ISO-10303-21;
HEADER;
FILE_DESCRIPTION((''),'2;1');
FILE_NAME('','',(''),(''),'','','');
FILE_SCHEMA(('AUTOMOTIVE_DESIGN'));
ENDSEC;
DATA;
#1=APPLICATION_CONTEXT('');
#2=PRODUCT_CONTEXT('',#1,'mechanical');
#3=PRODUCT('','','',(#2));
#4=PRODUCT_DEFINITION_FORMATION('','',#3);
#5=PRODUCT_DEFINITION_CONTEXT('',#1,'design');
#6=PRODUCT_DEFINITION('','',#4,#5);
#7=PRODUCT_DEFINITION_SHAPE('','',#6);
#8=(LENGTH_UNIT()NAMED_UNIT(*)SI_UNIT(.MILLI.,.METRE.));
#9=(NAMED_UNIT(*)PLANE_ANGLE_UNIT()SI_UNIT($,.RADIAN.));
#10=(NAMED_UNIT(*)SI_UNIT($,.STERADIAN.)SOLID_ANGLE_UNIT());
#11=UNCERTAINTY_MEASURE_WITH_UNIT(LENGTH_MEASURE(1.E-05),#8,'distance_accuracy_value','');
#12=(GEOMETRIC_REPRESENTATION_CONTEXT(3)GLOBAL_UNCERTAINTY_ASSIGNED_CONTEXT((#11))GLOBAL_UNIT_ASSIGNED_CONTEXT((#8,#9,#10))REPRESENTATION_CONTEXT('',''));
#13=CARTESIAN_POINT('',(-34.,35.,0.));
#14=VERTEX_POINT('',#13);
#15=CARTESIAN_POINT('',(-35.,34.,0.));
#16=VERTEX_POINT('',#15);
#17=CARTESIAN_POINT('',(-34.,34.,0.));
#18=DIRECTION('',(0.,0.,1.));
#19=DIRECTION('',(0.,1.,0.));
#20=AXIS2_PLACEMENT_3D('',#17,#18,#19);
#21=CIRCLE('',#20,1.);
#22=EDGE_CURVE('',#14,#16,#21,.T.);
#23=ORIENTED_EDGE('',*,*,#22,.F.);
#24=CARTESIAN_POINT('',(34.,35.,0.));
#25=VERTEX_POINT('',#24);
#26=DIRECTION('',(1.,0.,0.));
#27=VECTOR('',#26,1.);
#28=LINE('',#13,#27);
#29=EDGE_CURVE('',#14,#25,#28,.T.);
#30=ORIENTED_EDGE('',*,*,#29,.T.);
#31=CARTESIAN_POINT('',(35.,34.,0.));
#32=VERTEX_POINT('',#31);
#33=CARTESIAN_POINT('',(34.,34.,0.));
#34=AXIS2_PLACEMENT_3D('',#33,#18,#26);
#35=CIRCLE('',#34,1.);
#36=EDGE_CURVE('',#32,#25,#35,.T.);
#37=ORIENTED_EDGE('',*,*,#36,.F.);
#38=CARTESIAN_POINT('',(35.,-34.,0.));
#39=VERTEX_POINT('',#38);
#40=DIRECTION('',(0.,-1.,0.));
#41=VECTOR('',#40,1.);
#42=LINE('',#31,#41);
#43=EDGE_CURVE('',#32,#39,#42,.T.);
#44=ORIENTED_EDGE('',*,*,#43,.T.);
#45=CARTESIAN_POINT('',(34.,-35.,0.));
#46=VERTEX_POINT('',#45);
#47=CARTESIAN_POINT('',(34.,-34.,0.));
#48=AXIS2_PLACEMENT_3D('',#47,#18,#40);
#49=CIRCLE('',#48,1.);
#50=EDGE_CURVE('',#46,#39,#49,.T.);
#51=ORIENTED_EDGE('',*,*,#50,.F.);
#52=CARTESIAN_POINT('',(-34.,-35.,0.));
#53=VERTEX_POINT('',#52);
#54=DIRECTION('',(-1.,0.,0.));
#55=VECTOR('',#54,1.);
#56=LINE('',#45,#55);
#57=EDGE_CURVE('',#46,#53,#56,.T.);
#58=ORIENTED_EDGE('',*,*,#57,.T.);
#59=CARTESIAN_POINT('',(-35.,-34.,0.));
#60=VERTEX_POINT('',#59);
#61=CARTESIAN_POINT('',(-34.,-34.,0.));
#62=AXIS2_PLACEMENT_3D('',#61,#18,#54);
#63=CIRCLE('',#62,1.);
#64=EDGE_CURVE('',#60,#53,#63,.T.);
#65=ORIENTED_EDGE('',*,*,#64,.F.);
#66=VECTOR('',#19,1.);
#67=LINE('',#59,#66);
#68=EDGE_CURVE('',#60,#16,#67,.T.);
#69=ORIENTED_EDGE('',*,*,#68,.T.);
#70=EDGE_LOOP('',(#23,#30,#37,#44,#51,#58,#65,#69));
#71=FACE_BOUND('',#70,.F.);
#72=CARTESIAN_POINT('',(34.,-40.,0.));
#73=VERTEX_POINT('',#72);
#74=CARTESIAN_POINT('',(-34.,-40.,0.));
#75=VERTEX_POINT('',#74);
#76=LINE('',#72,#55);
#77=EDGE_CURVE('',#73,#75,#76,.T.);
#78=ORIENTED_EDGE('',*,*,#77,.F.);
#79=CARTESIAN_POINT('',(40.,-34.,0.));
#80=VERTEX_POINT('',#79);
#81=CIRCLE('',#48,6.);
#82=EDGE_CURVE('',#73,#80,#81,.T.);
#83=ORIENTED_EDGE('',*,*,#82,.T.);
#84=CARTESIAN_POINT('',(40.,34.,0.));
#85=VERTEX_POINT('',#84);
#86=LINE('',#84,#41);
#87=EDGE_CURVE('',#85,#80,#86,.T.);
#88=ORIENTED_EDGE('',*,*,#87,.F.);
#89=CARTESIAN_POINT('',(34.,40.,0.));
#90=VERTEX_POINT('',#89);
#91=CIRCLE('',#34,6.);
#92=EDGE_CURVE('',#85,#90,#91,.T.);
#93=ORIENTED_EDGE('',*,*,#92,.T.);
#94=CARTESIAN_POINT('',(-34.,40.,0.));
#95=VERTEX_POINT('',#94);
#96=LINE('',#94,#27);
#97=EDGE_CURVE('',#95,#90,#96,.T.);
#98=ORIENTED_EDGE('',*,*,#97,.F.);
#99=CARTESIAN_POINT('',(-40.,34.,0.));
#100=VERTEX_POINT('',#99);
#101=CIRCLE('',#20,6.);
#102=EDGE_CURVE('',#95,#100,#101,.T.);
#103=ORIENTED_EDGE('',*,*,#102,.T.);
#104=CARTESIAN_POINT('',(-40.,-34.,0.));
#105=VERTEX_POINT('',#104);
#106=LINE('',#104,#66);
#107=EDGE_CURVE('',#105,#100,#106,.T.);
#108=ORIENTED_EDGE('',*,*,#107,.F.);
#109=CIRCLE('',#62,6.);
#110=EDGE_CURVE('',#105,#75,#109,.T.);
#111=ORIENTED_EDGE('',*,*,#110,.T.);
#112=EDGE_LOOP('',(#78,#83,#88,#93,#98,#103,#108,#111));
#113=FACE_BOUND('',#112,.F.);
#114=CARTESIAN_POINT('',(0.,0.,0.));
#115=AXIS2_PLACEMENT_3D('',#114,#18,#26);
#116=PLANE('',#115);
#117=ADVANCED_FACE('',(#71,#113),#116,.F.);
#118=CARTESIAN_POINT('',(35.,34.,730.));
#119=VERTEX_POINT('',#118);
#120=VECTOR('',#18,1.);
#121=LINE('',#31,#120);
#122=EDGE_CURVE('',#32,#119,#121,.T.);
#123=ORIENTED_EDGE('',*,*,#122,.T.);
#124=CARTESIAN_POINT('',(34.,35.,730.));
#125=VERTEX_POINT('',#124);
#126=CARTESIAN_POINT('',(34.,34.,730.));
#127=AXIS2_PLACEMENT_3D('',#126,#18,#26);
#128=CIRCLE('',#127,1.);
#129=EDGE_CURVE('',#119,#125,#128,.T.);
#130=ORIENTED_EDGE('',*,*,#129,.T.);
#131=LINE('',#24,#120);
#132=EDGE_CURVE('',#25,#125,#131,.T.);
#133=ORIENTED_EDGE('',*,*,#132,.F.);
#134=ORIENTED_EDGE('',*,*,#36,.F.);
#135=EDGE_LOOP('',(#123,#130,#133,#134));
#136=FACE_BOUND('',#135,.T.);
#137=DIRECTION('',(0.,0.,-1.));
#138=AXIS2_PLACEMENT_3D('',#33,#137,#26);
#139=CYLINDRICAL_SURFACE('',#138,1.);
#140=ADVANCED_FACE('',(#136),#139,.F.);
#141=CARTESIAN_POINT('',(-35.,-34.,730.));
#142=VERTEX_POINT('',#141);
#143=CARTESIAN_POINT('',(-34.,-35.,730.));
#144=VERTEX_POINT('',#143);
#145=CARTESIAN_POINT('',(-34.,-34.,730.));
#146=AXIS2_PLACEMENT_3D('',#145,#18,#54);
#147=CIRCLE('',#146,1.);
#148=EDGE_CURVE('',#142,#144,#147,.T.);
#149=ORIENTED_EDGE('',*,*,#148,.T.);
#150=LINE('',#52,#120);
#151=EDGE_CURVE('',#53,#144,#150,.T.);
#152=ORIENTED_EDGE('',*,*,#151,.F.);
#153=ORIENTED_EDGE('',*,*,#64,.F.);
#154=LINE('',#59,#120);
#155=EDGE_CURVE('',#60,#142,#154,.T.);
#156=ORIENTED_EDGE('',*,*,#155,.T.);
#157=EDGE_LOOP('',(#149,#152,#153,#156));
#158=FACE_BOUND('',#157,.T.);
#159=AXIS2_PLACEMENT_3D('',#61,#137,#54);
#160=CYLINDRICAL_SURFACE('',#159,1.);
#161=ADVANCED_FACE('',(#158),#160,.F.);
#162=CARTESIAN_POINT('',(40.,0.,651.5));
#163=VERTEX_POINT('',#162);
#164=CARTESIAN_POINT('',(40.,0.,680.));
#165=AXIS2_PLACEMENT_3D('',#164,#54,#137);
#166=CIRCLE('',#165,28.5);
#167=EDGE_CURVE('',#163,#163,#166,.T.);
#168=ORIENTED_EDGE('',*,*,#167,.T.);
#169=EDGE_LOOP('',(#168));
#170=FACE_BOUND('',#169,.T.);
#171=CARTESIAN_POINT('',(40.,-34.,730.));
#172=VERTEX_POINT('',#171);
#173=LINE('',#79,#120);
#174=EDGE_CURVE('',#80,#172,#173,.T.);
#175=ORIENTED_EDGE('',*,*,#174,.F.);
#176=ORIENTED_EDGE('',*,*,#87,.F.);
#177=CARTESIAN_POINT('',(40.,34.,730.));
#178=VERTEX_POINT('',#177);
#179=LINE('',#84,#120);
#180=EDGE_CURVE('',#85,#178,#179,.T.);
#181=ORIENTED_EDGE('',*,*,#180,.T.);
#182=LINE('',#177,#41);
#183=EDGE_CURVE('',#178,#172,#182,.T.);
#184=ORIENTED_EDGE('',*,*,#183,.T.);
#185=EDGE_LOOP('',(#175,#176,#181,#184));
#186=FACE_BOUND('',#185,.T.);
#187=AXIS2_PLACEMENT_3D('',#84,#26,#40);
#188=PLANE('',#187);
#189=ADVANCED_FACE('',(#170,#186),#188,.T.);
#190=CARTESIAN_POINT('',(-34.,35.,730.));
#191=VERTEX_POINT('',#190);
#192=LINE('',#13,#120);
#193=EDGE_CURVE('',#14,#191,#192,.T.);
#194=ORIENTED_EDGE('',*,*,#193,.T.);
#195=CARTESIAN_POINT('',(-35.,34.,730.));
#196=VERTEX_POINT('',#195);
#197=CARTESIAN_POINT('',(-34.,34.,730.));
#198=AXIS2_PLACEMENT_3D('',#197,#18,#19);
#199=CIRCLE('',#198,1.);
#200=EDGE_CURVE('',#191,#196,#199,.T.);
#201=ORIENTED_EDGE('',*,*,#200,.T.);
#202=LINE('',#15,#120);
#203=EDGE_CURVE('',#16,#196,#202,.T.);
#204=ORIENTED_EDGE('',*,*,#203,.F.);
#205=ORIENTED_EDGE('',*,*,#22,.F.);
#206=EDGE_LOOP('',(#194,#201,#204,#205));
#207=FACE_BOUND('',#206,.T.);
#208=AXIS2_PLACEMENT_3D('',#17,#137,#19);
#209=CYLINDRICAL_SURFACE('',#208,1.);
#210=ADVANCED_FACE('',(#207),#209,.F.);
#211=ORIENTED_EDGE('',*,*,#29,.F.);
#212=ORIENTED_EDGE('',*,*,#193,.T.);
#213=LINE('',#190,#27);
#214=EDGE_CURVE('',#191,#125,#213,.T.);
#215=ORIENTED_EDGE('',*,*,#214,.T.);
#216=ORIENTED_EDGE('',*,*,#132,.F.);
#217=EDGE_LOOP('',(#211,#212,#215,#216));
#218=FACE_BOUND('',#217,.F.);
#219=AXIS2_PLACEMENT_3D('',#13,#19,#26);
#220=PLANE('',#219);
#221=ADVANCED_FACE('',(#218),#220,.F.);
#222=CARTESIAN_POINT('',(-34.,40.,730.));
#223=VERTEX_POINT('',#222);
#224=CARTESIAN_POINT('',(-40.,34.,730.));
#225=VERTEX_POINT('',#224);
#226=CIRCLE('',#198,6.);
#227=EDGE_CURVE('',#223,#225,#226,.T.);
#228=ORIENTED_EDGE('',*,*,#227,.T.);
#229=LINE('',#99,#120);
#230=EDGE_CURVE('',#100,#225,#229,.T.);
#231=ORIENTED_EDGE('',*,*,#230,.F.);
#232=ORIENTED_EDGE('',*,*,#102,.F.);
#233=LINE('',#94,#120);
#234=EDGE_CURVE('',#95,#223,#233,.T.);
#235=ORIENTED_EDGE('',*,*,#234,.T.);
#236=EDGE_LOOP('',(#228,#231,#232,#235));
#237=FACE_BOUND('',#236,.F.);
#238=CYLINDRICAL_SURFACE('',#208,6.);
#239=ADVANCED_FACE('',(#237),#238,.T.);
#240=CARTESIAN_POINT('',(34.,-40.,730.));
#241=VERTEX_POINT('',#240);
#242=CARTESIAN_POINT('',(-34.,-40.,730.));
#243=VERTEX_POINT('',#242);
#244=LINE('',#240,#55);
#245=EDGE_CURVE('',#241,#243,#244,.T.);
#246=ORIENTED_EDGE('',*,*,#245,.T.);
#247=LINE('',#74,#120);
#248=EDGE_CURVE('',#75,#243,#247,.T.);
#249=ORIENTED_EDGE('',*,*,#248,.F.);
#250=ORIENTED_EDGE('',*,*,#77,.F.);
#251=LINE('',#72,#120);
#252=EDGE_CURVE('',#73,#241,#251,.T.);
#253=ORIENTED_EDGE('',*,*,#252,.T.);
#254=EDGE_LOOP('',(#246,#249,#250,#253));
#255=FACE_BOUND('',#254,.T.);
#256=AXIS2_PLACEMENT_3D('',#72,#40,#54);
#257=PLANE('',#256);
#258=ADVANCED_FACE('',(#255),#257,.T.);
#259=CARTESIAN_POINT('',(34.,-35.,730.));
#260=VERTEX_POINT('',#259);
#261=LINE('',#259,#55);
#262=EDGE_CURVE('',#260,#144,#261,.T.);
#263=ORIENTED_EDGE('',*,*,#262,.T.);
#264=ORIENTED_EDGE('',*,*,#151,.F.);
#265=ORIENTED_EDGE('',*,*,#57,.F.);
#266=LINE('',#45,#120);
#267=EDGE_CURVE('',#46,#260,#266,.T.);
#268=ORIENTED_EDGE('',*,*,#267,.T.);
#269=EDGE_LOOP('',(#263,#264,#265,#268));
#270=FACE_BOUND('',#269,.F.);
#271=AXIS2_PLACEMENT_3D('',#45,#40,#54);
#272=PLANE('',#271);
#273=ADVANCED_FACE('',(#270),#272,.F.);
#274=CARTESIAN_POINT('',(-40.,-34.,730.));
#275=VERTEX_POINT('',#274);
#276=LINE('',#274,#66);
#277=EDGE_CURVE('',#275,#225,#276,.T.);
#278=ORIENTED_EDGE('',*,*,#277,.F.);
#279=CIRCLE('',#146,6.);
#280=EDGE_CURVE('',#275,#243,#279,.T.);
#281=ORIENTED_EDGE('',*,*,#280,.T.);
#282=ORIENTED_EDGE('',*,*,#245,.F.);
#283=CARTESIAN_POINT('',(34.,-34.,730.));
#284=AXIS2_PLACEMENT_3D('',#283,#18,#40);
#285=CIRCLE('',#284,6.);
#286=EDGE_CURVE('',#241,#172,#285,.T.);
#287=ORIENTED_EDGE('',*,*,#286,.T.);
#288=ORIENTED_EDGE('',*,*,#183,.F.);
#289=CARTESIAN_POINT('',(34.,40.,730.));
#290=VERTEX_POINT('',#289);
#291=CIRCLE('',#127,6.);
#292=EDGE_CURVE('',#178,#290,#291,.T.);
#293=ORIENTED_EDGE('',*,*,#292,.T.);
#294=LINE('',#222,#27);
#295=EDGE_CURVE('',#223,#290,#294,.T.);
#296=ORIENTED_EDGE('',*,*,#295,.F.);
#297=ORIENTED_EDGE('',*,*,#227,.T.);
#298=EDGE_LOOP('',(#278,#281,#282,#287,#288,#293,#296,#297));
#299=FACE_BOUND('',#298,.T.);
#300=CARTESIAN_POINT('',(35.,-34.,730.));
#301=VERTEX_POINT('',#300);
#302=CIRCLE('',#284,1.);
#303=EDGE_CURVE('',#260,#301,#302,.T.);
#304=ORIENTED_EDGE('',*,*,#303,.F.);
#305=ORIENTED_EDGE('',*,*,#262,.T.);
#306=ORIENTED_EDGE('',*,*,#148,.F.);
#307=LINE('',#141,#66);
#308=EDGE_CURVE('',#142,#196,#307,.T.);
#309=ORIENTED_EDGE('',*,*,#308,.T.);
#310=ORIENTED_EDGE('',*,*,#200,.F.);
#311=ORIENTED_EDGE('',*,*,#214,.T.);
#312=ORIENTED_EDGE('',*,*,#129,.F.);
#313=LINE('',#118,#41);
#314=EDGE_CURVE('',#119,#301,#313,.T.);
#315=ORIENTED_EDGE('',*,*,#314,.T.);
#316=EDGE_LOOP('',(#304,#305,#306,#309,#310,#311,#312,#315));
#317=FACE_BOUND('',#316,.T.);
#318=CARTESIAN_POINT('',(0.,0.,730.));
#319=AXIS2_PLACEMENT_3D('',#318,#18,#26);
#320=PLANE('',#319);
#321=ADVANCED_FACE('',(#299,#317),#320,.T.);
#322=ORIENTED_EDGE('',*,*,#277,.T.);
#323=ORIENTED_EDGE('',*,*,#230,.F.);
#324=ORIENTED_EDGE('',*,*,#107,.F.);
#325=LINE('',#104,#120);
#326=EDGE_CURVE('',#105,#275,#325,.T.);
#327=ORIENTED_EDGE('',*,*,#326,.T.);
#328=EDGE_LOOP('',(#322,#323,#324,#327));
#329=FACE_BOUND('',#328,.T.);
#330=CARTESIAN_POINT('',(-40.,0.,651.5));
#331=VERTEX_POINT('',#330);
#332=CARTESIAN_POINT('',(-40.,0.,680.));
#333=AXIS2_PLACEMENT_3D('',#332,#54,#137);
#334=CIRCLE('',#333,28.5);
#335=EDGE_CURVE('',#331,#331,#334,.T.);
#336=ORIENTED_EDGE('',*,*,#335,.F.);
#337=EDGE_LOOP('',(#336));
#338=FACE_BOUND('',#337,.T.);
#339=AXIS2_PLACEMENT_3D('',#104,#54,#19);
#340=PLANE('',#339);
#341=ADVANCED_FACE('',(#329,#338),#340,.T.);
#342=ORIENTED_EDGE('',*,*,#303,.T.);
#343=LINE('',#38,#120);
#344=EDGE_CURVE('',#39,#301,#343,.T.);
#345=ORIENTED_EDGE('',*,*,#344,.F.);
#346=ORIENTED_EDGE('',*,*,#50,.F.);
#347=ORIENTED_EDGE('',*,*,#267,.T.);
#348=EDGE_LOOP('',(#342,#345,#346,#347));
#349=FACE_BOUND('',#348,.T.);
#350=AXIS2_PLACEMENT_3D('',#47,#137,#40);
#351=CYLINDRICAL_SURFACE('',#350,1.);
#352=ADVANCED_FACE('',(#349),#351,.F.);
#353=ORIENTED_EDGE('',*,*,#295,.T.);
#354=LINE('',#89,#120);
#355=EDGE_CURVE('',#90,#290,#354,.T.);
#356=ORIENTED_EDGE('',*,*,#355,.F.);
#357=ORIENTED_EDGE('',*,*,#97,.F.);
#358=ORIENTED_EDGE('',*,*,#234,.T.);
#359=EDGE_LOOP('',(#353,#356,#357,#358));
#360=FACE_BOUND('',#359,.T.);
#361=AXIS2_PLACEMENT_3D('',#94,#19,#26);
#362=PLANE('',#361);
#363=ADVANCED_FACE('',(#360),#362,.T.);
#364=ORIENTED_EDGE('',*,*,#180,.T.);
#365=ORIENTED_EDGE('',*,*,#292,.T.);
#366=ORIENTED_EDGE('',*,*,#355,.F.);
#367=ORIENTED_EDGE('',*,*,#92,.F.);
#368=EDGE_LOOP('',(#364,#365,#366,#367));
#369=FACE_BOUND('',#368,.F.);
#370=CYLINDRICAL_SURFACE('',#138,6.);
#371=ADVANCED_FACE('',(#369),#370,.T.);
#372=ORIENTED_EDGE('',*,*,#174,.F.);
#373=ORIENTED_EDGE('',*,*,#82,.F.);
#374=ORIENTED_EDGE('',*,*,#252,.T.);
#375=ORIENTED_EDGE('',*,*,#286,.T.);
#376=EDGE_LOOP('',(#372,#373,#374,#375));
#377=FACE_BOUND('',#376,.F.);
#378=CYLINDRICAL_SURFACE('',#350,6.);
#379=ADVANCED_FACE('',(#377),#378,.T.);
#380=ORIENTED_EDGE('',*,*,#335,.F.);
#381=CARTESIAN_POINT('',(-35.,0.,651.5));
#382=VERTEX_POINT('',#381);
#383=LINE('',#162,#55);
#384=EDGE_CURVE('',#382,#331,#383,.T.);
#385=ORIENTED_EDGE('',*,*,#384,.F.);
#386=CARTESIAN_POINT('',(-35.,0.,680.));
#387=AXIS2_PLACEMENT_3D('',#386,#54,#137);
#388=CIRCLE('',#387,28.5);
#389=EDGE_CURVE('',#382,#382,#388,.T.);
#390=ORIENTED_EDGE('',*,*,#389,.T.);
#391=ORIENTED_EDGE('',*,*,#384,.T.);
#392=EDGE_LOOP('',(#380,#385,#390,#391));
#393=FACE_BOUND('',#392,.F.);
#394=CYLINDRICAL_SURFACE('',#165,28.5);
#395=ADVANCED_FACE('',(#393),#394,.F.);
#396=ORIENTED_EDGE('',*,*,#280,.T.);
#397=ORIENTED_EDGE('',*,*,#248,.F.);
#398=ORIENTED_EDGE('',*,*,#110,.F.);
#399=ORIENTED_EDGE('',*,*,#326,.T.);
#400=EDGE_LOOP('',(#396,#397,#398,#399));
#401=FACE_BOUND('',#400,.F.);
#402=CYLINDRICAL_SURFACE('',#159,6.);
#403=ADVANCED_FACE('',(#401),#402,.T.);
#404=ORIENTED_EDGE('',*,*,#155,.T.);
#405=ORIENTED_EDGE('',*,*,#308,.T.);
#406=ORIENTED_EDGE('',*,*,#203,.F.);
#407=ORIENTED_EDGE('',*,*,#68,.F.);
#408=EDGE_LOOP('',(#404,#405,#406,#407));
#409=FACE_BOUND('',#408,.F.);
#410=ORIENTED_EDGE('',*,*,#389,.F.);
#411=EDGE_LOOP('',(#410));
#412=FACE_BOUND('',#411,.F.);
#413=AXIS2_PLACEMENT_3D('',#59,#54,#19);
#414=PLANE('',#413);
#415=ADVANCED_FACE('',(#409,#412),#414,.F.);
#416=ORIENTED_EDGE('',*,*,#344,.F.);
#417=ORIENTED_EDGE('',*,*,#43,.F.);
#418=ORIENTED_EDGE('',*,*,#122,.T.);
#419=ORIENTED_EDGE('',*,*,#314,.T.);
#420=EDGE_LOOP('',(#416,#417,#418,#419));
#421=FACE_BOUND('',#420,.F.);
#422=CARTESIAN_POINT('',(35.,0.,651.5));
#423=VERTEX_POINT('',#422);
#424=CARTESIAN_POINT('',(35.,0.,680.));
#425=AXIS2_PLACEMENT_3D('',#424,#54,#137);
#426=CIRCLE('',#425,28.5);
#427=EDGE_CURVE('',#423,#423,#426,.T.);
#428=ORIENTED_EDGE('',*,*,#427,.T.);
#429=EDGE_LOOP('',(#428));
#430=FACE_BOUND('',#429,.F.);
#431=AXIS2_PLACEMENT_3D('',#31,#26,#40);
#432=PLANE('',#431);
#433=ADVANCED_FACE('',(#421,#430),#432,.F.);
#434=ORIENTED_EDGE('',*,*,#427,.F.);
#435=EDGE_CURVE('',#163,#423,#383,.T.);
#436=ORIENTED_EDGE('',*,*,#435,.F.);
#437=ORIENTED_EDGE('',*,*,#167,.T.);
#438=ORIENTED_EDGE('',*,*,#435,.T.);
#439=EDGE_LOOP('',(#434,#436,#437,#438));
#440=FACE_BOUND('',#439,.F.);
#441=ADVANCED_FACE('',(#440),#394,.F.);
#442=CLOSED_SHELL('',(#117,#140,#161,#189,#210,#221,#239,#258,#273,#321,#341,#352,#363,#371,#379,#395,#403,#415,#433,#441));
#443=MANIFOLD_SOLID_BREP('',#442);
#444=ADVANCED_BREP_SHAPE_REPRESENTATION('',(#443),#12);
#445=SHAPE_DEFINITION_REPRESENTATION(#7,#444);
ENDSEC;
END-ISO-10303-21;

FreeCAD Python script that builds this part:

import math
import FreeCAD as App
import Part
import Sketcher
from FreeCAD import Vector

doc = App.newDocument("Part")
body = doc.addObject("PartDesign::Body", "Body")

# Sketch on XY plane
sketch1 = body.newObject("Sketcher::SketchObject", "Sketch")
sketch1.AttachmentSupport = (doc.getObject("XY_Plane"), [""])
sketch1.MapMode = "FlatFace"
sketch1.addGeometry(Part.LineSegment(Vector(40, -34, 0), Vector(40, 34, 0)), False)
sketch1.addGeometry(Part.ArcOfCircle(Part.Circle(Vector(34, 34, 0), Vector(0, 0, 1), 6), math.radians(0), math.radians(90)), False)
sketch1.addGeometry(Part.LineSegment(Vector(34, 40, 0), Vector(-34, 40, 0)), False)
sketch1.addGeometry(Part.ArcOfCircle(Part.Circle(Vector(-34, 34, 0), Vector(0, 0, 1), 6), math.radians(90), math.radians(180)), False)
sketch1.addGeometry(Part.LineSegment(Vector(-40, 34, 0), Vector(-40, -34, 0)), False)
sketch1.addGeometry(Part.ArcOfCircle(Part.Circle(Vector(-34, -34, 0), Vector(0, 0, 1), 6), math.radians(180), math.radians(270)), False)
sketch1.addGeometry(Part.LineSegment(Vector(-34, -40, 0), Vector(34, -40, 0)), False)
sketch1.addGeometry(Part.ArcOfCircle(Part.Circle(Vector(34, -34, 0), Vector(0, 0, 1), 6), math.radians(-90), math.radians(0)), False)
sketch1.addGeometry(Part.ArcOfCircle(Part.Circle(Vector(-34, 34, 0), Vector(0, 0, 1), 1), math.radians(90), math.radians(180)), False)
sketch1.addGeometry(Part.LineSegment(Vector(-34, 35, 0), Vector(34, 35, 0)), False)
sketch1.addGeometry(Part.ArcOfCircle(Part.Circle(Vector(34, 34, 0), Vector(0, 0, 1), 1), math.radians(0), math.radians(90)), False)
sketch1.addGeometry(Part.LineSegment(Vector(35, 34, 0), Vector(35, -34, 0)), False)
sketch1.addGeometry(Part.ArcOfCircle(Part.Circle(Vector(34, -34, 0), Vector(0, 0, 1), 1), math.radians(-90), math.radians(0)), False)
sketch1.addGeometry(Part.LineSegment(Vector(34, -35, 0), Vector(-34, -35, 0)), False)
sketch1.addGeometry(Part.ArcOfCircle(Part.Circle(Vector(-34, -34, 0), Vector(0, 0, 1), 1), math.radians(180), math.radians(270)), False)
sketch1.addGeometry(Part.LineSegment(Vector(-35, -34, 0), Vector(-35, 34, 0)), False)
sketch1.addConstraint(Sketcher.Constraint("Tangent", 0, 2, 1, 1))
sketch1.addConstraint(Sketcher.Constraint("Tangent", 1, 2, 2, 1))
sketch1.addConstraint(Sketcher.Constraint("Tangent", 2, 2, 3, 1))
sketch1.addConstraint(Sketcher.Constraint("Tangent", 3, 2, 4, 1))
sketch1.addConstraint(Sketcher.Constraint("Tangent", 4, 2, 5, 1))
sketch1.addConstraint(Sketcher.Constraint("Tangent", 5, 2, 6, 1))
sketch1.addConstraint(Sketcher.Constraint("Tangent", 6, 2, 7, 1))
sketch1.addConstraint(Sketcher.Constraint("Tangent", 7, 2, 0, 1))
sketch1.addConstraint(Sketcher.Constraint("Tangent", 8, 1, 9, 1))
sketch1.addConstraint(Sketcher.Constraint("Tangent", 9, 2, 10, 2))
sketch1.addConstraint(Sketcher.Constraint("Tangent", 10, 1, 11, 1))
sketch1.addConstraint(Sketcher.Constraint("Tangent", 11, 2, 12, 2))
sketch1.addConstraint(Sketcher.Constraint("Tangent", 12, 1, 13, 1))
sketch1.addConstraint(Sketcher.Constraint("Tangent", 13, 2, 14, 2))
sketch1.addConstraint(Sketcher.Constraint("Tangent", 14, 1, 15, 1))
sketch1.addConstraint(Sketcher.Constraint("Tangent", 15, 2, 8, 2))
sketch1.addConstraint(Sketcher.Constraint("Vertical", 0))
sketch1.addConstraint(Sketcher.Constraint("Horizontal", 2))
sketch1.addConstraint(Sketcher.Constraint("Vertical", 4))
sketch1.addConstraint(Sketcher.Constraint("Horizontal", 6))
sketch1.addConstraint(Sketcher.Constraint("Horizontal", 9))
sketch1.addConstraint(Sketcher.Constraint("Vertical", 11))
sketch1.addConstraint(Sketcher.Constraint("Horizontal", 13))
sketch1.addConstraint(Sketcher.Constraint("Vertical", 15))
sketch1.addConstraint(Sketcher.Constraint("Coincident", 8, 3, 3, 3))
sketch1.addConstraint(Sketcher.Constraint("Coincident", 10, 3, 1, 3))
sketch1.addConstraint(Sketcher.Constraint("Coincident", 12, 3, 7, 3))
sketch1.addConstraint(Sketcher.Constraint("Equal", 1, 3))
sketch1.addConstraint(Sketcher.Constraint("Equal", 3, 5))
sketch1.addConstraint(Sketcher.Constraint("Equal", 5, 7))
sketch1.addConstraint(Sketcher.Constraint("Equal", 12, 14))
sketch1.addConstraint(Sketcher.Constraint("Symmetric", 1, 3, 5, 3, -1, 1))
sketch1.addConstraint(Sketcher.Constraint("Equal", 13, 0))
sketch1.addConstraint(Sketcher.Constraint("Radius", 1, 6.0))
sketch1.addConstraint(Sketcher.Constraint("Radius", 8, 1.0))
sketch1.addConstraint(Sketcher.Constraint("DistanceX", 2, 2, 2, 1, 68.0))
pad1 = body.newObject("PartDesign::Pad", "Pad")
pad1.Profile = sketch1
pad1.Length = 730

# Sketch on YZ plane
sketch2 = body.newObject("Sketcher::SketchObject", "Sketch001")
sketch2.AttachmentSupport = (doc.getObject("YZ_Plane"), [""])
sketch2.MapMode = "FlatFace"
sketch2.AttachmentOffset = App.Placement(Vector(0, 0, 40), App.Rotation())
sketch2.addGeometry(Part.Circle(Vector(0, 680, 0), Vector(0, 0, 1), 28.5), False)
sketch2.addConstraint(Sketcher.Constraint("PointOnObject", 0, 3, -2))
sketch2.addConstraint(Sketcher.Constraint("Diameter", 0, 57.0))
sketch2.addConstraint(Sketcher.Constraint("DistanceY", -1, 1, 0, 3, 680.0))
doc.recompute()
hole = body.newObject("PartDesign::Hole", "Hole")
hole.Profile = sketch2
hole.ThreadType = "None"
hole.Diameter = 57
hole.DepthType = "ThroughAll"

doc.recompute()
